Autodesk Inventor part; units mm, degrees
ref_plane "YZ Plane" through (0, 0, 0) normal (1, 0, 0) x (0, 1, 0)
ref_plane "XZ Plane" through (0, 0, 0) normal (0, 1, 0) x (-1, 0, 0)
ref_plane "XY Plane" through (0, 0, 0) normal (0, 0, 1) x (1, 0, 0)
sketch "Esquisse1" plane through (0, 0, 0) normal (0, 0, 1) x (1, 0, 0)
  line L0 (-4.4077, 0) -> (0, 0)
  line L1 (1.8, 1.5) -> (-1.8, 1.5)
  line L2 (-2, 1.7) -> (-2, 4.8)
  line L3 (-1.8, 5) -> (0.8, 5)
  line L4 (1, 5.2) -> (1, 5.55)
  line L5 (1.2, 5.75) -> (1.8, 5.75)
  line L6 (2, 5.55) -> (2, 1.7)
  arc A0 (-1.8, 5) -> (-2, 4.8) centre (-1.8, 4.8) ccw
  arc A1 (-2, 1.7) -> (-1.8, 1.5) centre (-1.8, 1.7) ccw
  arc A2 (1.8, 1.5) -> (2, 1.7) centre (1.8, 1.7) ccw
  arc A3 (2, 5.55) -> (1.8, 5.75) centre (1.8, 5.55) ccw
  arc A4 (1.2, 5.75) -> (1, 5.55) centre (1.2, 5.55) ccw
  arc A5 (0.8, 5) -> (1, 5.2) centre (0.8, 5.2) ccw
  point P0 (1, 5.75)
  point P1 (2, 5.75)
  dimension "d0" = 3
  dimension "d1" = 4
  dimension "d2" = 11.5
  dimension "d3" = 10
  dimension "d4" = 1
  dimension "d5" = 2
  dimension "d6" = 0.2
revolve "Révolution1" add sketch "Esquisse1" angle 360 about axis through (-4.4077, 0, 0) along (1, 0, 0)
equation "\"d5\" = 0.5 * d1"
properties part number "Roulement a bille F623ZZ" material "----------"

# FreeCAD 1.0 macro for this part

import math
import FreeCAD as App
import Part
import Sketcher

V = App.Vector
Q = App.Units.Quantity

doc = App.newDocument("Part")
params = doc.addObject("Spreadsheet::Sheet", "Params")
for row, (alias, value) in enumerate([
    ("sketch1_radius", "0.2 mm"),
    ("sketch1_height", "3.1 mm"),
    ("sketch1_height2", "3.85 mm"),
    ("revolution_angle", "360 deg"),
], start=1):
    params.set(f"A{row}", alias)
    params.set(f"B{row}", "=" + value)
    params.setAlias(f"B{row}", alias)

body = doc.addObject("PartDesign::Body", "Body")

# Sketch on XY plane
sketch1 = doc.addObject("Sketcher::SketchObject", "Sketch")
body.addObject(sketch1)
sketch1.AttachmentSupport = (doc.XY_Plane, [""])
sketch1.MapMode = "FlatFace"
sketch1.addGeometry([
    Part.LineSegment(V(-1.8, 1.5, 0), V(1.8, 1.5, 0)),  # 0
    Part.ArcOfCircle(Part.Circle(V(1.8, 1.7, 0), V(0, 0, 1), 0.2), math.radians(-90), math.radians(0)),  # 1
    Part.LineSegment(V(2, 1.7, 0), V(2, 5.55, 0)),  # 2
    Part.ArcOfCircle(Part.Circle(V(1.8, 5.55, 0), V(0, 0, 1), 0.2), math.radians(0), math.radians(90)),  # 3
    Part.LineSegment(V(1.8, 5.75, 0), V(1.2, 5.75, 0)),  # 4
    Part.ArcOfCircle(Part.Circle(V(1.2, 5.55, 0), V(0, 0, 1), 0.2), math.radians(90), math.radians(180)),  # 5
    Part.LineSegment(V(1, 5.55, 0), V(1, 5.2, 0)),  # 6
    Part.ArcOfCircle(Part.Circle(V(0.8, 5.2, 0), V(0, 0, 1), 0.2), math.radians(-90), math.radians(0)),  # 7
    Part.LineSegment(V(0.8, 5, 0), V(-1.8, 5, 0)),  # 8
    Part.ArcOfCircle(Part.Circle(V(-1.8, 4.8, 0), V(0, 0, 1), 0.2), math.radians(90), math.radians(180)),  # 9
    Part.LineSegment(V(-2, 4.8, 0), V(-2, 1.7, 0)),  # 10
    Part.ArcOfCircle(Part.Circle(V(-1.8, 1.7, 0), V(0, 0, 1), 0.2), math.radians(180), math.radians(270)),  # 11
], False)
sketch1.addConstraint([
    Sketcher.Constraint("Tangent", 0, 2, 1, 1),
    Sketcher.Constraint("Tangent", 1, 2, 2, 1),
    Sketcher.Constraint("Tangent", 2, 2, 3, 1),
    Sketcher.Constraint("Tangent", 3, 2, 4, 1),
    Sketcher.Constraint("Tangent", 4, 2, 5, 1),
    Sketcher.Constraint("Tangent", 5, 2, 6, 1),
    Sketcher.Constraint("Tangent", 6, 2, 7, 2),
    Sketcher.Constraint("Tangent", 7, 1, 8, 1),
    Sketcher.Constraint("Tangent", 8, 2, 9, 1),
    Sketcher.Constraint("Tangent", 9, 2, 10, 1),
    Sketcher.Constraint("Tangent", 10, 2, 11, 1),
    Sketcher.Constraint("Tangent", 11, 2, 0, 1),
    Sketcher.Constraint("Horizontal", 0),
    Sketcher.Constraint("Vertical", 2),
    Sketcher.Constraint("Horizontal", 4),
    Sketcher.Constraint("Vertical", 6),
    Sketcher.Constraint("Horizontal", 8),
    Sketcher.Constraint("Vertical", 10),
    Sketcher.Constraint("Equal", 1, 3),
    Sketcher.Constraint("Equal", 3, 5),
    Sketcher.Constraint("Equal", 5, 7),
    Sketcher.Constraint("Equal", 7, 9),
    Sketcher.Constraint("Equal", 9, 11),
    Sketcher.Constraint("Radius", 1, Q("0.2 mm")),
    Sketcher.Constraint("DistanceX", -1, 1, 1, 2, Q("2 mm")),
    Sketcher.Constraint("DistanceX", -1, 1, 5, 2, Q("1 mm")),
    Sketcher.Constraint("DistanceX", 9, 2, -1, 1, Q("2 mm")),
    Sketcher.Constraint("DistanceY", 10, 2, 10, 1, Q("3.1 mm")),
    Sketcher.Constraint("DistanceY", -1, 1, 7, 1, Q("5 mm")),
    Sketcher.Constraint("DistanceY", 2, 1, 2, 2, Q("3.85 mm")),
])
sketch1.setExpression("Constraints[23]", "Params.sketch1_radius")
sketch1.setExpression("Constraints[27]", "Params.sketch1_height")
sketch1.setExpression("Constraints[29]", "Params.sketch1_height2")
revolution = doc.addObject("PartDesign::Revolution", "Revolution")
body.addObject(revolution)
revolution.Profile = sketch1
revolution.ReferenceAxis = (sketch1, ["H_Axis"])
revolution.setExpression("Angle", "Params.revolution_angle")

doc.recompute()
